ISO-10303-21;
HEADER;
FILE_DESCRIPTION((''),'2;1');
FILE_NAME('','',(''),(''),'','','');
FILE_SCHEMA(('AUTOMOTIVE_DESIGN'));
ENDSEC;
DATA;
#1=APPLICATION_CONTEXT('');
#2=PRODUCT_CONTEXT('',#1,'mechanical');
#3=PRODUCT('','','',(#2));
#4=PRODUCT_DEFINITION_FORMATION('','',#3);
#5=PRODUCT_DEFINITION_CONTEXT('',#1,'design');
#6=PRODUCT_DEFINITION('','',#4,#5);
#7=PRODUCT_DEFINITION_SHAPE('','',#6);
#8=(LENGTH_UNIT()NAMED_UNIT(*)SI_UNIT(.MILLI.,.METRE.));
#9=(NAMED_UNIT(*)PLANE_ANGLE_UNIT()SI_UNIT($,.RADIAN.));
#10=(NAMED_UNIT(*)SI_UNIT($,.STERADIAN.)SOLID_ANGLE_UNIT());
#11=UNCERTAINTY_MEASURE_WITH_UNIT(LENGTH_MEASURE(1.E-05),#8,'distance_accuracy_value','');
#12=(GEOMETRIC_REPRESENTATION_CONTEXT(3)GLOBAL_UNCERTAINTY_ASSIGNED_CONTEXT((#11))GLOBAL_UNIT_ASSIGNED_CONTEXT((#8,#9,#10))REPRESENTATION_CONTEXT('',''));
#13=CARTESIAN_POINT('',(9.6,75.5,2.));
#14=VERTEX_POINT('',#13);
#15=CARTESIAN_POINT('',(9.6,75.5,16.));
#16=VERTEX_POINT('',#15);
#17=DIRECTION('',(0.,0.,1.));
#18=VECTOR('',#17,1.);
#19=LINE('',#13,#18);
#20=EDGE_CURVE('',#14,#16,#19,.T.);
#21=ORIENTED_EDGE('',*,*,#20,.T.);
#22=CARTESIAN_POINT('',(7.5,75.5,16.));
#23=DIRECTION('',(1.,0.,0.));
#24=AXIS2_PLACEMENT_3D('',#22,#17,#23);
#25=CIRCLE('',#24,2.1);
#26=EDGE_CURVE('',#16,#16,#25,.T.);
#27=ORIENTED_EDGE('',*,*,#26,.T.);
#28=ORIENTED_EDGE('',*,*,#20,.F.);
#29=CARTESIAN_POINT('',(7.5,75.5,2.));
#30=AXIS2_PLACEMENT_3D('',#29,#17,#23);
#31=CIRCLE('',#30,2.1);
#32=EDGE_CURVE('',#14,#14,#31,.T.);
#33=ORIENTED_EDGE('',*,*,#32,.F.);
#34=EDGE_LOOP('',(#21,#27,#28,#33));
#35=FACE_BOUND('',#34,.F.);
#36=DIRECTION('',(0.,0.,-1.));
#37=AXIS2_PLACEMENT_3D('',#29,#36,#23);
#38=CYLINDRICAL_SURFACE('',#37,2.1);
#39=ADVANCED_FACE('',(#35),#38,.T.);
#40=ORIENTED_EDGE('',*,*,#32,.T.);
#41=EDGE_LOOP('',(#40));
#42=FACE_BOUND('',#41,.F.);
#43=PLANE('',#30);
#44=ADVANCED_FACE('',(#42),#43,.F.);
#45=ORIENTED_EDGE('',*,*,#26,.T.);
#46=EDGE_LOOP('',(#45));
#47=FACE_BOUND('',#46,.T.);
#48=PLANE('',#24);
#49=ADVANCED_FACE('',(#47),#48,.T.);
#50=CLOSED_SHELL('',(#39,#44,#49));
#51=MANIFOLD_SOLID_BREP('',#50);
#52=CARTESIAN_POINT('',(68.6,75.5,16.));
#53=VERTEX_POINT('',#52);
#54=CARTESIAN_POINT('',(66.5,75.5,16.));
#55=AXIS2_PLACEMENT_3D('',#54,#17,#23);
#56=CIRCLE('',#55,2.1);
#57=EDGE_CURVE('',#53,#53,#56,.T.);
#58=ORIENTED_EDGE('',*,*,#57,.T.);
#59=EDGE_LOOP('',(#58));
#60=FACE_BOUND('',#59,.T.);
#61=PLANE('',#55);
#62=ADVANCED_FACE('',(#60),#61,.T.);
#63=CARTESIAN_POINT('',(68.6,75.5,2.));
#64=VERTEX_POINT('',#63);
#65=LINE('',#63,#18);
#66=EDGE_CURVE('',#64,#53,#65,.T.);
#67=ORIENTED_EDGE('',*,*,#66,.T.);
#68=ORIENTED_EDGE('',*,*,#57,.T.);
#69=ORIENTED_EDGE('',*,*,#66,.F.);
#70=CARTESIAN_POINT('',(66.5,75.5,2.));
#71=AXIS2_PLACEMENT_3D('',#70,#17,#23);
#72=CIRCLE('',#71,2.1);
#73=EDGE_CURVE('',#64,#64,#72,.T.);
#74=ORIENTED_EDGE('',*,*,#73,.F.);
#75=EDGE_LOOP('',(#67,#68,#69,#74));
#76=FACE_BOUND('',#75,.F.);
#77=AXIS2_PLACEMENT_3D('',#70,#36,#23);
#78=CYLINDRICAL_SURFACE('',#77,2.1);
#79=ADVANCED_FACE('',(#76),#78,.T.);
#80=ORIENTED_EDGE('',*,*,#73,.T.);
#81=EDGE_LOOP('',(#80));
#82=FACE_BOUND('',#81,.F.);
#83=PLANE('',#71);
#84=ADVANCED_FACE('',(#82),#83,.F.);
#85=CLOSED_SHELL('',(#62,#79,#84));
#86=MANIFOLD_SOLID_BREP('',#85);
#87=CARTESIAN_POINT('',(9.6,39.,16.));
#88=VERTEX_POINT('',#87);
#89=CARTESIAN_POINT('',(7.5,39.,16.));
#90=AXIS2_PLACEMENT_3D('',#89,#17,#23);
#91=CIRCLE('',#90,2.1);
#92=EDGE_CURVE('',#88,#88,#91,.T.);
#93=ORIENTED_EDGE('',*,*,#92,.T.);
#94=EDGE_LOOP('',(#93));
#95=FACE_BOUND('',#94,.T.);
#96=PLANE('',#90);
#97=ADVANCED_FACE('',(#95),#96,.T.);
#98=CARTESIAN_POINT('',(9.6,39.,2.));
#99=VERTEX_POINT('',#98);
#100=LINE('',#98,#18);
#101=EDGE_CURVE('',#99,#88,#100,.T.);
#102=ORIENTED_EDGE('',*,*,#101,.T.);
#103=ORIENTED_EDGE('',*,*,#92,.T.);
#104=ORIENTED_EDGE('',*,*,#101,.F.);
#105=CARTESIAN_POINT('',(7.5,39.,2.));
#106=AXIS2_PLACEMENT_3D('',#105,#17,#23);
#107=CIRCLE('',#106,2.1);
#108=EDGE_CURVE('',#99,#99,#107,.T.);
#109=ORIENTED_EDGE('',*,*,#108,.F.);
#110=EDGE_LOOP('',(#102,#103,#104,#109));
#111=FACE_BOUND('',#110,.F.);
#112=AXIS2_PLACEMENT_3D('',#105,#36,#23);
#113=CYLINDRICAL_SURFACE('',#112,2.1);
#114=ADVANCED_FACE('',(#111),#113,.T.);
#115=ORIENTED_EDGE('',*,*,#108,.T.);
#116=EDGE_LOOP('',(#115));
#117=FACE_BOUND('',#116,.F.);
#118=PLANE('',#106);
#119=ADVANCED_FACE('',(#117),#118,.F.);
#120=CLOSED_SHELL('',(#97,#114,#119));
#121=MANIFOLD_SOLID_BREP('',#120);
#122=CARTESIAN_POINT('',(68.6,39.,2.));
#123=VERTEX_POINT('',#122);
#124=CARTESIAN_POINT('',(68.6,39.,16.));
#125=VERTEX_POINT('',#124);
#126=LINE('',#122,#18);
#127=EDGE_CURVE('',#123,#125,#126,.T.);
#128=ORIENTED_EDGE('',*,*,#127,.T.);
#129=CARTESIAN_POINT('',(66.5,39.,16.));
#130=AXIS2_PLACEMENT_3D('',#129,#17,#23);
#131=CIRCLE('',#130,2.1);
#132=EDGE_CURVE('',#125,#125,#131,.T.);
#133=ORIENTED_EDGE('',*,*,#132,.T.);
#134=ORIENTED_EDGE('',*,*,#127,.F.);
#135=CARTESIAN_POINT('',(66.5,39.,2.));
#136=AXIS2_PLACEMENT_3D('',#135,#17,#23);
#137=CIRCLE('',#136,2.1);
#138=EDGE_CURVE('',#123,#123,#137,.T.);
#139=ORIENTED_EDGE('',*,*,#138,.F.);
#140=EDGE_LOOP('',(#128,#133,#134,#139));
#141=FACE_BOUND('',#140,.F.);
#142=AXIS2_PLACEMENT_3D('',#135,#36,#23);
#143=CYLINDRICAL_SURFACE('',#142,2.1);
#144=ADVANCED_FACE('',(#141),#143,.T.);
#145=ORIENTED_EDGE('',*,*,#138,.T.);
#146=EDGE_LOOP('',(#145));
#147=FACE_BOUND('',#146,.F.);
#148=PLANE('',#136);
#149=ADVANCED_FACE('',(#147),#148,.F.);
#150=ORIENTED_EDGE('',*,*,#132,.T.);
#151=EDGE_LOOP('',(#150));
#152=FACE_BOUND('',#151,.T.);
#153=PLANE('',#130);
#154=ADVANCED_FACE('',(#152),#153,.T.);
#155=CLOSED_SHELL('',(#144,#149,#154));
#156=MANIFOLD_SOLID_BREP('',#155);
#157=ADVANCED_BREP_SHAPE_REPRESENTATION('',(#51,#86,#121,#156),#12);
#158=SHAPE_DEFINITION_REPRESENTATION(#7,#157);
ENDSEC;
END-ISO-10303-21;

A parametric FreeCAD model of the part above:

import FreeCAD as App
import Part
import Sketcher
from FreeCAD import Vector
Q = App.Units.Quantity

doc = App.newDocument("Part")
body = doc.addObject("PartDesign::Body", "Body")

sketch1 = body.newObject("Sketcher::SketchObject", "Sketch")
sketch1.AttachmentSupport = (doc.getObject("XY_Plane"), [""])
sketch1.MapMode = "FlatFace"
sketch1.AttachmentOffset = App.Placement(Vector(0, 0, 2), App.Rotation())
sketch1.addGeometry(Part.Circle(Vector(7.5, 75.5, 0), Vector(0, 0, 1), 2.1), False)
sketch1.addConstraint(Sketcher.Constraint("Diameter", 0, Q("4.2 mm")))
sketch1.addConstraint(Sketcher.Constraint("DistanceX", -1, 1, 0, 3, Q("7.5 mm")))
sketch1.addConstraint(Sketcher.Constraint("DistanceY", -1, 1, 0, 3, Q("75.5 mm")))
pad1 = body.newObject("PartDesign::Pad", "Pad")
pad1.Profile = sketch1
pad1.Length = 14
body2 = doc.addObject("PartDesign::Body", "Body001")

sketch2 = body2.newObject("Sketcher::SketchObject", "Sketch001")
sketch2.AttachmentSupport = (doc.getObject("XY_Plane001"), [""])
sketch2.MapMode = "FlatFace"
sketch2.AttachmentOffset = App.Placement(Vector(0, 0, 2), App.Rotation())
sketch2.addGeometry(Part.Circle(Vector(66.5, 39, 0), Vector(0, 0, 1), 2.1), False)
sketch2.addConstraint(Sketcher.Constraint("Diameter", 0, Q("4.2 mm")))
sketch2.addConstraint(Sketcher.Constraint("DistanceY", -1, 1, 0, 3, Q("39 mm")))
sketch2.addConstraint(Sketcher.Constraint("DistanceX", -1, 1, 0, 3, Q("66.5 mm")))
pad2 = body2.newObject("PartDesign::Pad", "Pad001")
pad2.Profile = sketch2
pad2.Length = 14
body3 = doc.addObject("PartDesign::Body", "Body002")

sketch3 = body3.newObject("Sketcher::SketchObject", "Sketch002")
sketch3.AttachmentSupport = (doc.getObject("XY_Plane002"), [""])
sketch3.MapMode = "FlatFace"
sketch3.AttachmentOffset = App.Placement(Vector(0, 0, 2), App.Rotation())
sketch3.addGeometry(Part.Circle(Vector(7.5, 39, 0), Vector(0, 0, 1), 2.1), False)
sketch3.addConstraint(Sketcher.Constraint("Diameter", 0, Q("4.2 mm")))
sketch3.addConstraint(Sketcher.Constraint("DistanceY", -1, 1, 0, 3, Q("39 mm")))
sketch3.addConstraint(Sketcher.Constraint("DistanceX", -1, 1, 0, 3, Q("7.5 mm")))
pad3 = body3.newObject("PartDesign::Pad", "Pad002")
pad3.Profile = sketch3
pad3.Length = 14
body4 = doc.addObject("PartDesign::Body", "Body003")
body4.AllowCompound = True

sketch4 = body4.newObject("Sketcher::SketchObject", "Sketch003")
sketch4.AttachmentSupport = (doc.getObject("XY_Plane003"), [""])
sketch4.MapMode = "FlatFace"
sketch4.AttachmentOffset = App.Placement(Vector(0, 0, 2), App.Rotation())
sketch4.addGeometry(Part.Circle(Vector(66.5, 75.5, 0), Vector(0, 0, 1), 2.1), False)
sketch4.addConstraint(Sketcher.Constraint("Diameter", 0, Q("4.2 mm")))
sketch4.addConstraint(Sketcher.Constraint("DistanceX", -1, 1, 0, 3, Q("66.5 mm")))
sketch4.addConstraint(Sketcher.Constraint("DistanceY", -1, 1, 0, 3, Q("75.5 mm")))
pad4 = body4.newObject("PartDesign::Pad", "Pad003")
pad4.Profile = sketch4
pad4.Length = 14
doc.recompute()

boolean = body4.newObject("PartDesign::Boolean", "Boolean")
boolean.Type = "Fuse"
boolean.addObjects([body])
doc.recompute()

boolean2 = body4.newObject("PartDesign::Boolean", "Boolean001")
boolean2.Type = "Fuse"
boolean2.addObjects([body2])
doc.recompute()

boolean3 = body4.newObject("PartDesign::Boolean", "Boolean002")
boolean3.Type = "Fuse"
boolean3.addObjects([body3])

doc.recompute()
